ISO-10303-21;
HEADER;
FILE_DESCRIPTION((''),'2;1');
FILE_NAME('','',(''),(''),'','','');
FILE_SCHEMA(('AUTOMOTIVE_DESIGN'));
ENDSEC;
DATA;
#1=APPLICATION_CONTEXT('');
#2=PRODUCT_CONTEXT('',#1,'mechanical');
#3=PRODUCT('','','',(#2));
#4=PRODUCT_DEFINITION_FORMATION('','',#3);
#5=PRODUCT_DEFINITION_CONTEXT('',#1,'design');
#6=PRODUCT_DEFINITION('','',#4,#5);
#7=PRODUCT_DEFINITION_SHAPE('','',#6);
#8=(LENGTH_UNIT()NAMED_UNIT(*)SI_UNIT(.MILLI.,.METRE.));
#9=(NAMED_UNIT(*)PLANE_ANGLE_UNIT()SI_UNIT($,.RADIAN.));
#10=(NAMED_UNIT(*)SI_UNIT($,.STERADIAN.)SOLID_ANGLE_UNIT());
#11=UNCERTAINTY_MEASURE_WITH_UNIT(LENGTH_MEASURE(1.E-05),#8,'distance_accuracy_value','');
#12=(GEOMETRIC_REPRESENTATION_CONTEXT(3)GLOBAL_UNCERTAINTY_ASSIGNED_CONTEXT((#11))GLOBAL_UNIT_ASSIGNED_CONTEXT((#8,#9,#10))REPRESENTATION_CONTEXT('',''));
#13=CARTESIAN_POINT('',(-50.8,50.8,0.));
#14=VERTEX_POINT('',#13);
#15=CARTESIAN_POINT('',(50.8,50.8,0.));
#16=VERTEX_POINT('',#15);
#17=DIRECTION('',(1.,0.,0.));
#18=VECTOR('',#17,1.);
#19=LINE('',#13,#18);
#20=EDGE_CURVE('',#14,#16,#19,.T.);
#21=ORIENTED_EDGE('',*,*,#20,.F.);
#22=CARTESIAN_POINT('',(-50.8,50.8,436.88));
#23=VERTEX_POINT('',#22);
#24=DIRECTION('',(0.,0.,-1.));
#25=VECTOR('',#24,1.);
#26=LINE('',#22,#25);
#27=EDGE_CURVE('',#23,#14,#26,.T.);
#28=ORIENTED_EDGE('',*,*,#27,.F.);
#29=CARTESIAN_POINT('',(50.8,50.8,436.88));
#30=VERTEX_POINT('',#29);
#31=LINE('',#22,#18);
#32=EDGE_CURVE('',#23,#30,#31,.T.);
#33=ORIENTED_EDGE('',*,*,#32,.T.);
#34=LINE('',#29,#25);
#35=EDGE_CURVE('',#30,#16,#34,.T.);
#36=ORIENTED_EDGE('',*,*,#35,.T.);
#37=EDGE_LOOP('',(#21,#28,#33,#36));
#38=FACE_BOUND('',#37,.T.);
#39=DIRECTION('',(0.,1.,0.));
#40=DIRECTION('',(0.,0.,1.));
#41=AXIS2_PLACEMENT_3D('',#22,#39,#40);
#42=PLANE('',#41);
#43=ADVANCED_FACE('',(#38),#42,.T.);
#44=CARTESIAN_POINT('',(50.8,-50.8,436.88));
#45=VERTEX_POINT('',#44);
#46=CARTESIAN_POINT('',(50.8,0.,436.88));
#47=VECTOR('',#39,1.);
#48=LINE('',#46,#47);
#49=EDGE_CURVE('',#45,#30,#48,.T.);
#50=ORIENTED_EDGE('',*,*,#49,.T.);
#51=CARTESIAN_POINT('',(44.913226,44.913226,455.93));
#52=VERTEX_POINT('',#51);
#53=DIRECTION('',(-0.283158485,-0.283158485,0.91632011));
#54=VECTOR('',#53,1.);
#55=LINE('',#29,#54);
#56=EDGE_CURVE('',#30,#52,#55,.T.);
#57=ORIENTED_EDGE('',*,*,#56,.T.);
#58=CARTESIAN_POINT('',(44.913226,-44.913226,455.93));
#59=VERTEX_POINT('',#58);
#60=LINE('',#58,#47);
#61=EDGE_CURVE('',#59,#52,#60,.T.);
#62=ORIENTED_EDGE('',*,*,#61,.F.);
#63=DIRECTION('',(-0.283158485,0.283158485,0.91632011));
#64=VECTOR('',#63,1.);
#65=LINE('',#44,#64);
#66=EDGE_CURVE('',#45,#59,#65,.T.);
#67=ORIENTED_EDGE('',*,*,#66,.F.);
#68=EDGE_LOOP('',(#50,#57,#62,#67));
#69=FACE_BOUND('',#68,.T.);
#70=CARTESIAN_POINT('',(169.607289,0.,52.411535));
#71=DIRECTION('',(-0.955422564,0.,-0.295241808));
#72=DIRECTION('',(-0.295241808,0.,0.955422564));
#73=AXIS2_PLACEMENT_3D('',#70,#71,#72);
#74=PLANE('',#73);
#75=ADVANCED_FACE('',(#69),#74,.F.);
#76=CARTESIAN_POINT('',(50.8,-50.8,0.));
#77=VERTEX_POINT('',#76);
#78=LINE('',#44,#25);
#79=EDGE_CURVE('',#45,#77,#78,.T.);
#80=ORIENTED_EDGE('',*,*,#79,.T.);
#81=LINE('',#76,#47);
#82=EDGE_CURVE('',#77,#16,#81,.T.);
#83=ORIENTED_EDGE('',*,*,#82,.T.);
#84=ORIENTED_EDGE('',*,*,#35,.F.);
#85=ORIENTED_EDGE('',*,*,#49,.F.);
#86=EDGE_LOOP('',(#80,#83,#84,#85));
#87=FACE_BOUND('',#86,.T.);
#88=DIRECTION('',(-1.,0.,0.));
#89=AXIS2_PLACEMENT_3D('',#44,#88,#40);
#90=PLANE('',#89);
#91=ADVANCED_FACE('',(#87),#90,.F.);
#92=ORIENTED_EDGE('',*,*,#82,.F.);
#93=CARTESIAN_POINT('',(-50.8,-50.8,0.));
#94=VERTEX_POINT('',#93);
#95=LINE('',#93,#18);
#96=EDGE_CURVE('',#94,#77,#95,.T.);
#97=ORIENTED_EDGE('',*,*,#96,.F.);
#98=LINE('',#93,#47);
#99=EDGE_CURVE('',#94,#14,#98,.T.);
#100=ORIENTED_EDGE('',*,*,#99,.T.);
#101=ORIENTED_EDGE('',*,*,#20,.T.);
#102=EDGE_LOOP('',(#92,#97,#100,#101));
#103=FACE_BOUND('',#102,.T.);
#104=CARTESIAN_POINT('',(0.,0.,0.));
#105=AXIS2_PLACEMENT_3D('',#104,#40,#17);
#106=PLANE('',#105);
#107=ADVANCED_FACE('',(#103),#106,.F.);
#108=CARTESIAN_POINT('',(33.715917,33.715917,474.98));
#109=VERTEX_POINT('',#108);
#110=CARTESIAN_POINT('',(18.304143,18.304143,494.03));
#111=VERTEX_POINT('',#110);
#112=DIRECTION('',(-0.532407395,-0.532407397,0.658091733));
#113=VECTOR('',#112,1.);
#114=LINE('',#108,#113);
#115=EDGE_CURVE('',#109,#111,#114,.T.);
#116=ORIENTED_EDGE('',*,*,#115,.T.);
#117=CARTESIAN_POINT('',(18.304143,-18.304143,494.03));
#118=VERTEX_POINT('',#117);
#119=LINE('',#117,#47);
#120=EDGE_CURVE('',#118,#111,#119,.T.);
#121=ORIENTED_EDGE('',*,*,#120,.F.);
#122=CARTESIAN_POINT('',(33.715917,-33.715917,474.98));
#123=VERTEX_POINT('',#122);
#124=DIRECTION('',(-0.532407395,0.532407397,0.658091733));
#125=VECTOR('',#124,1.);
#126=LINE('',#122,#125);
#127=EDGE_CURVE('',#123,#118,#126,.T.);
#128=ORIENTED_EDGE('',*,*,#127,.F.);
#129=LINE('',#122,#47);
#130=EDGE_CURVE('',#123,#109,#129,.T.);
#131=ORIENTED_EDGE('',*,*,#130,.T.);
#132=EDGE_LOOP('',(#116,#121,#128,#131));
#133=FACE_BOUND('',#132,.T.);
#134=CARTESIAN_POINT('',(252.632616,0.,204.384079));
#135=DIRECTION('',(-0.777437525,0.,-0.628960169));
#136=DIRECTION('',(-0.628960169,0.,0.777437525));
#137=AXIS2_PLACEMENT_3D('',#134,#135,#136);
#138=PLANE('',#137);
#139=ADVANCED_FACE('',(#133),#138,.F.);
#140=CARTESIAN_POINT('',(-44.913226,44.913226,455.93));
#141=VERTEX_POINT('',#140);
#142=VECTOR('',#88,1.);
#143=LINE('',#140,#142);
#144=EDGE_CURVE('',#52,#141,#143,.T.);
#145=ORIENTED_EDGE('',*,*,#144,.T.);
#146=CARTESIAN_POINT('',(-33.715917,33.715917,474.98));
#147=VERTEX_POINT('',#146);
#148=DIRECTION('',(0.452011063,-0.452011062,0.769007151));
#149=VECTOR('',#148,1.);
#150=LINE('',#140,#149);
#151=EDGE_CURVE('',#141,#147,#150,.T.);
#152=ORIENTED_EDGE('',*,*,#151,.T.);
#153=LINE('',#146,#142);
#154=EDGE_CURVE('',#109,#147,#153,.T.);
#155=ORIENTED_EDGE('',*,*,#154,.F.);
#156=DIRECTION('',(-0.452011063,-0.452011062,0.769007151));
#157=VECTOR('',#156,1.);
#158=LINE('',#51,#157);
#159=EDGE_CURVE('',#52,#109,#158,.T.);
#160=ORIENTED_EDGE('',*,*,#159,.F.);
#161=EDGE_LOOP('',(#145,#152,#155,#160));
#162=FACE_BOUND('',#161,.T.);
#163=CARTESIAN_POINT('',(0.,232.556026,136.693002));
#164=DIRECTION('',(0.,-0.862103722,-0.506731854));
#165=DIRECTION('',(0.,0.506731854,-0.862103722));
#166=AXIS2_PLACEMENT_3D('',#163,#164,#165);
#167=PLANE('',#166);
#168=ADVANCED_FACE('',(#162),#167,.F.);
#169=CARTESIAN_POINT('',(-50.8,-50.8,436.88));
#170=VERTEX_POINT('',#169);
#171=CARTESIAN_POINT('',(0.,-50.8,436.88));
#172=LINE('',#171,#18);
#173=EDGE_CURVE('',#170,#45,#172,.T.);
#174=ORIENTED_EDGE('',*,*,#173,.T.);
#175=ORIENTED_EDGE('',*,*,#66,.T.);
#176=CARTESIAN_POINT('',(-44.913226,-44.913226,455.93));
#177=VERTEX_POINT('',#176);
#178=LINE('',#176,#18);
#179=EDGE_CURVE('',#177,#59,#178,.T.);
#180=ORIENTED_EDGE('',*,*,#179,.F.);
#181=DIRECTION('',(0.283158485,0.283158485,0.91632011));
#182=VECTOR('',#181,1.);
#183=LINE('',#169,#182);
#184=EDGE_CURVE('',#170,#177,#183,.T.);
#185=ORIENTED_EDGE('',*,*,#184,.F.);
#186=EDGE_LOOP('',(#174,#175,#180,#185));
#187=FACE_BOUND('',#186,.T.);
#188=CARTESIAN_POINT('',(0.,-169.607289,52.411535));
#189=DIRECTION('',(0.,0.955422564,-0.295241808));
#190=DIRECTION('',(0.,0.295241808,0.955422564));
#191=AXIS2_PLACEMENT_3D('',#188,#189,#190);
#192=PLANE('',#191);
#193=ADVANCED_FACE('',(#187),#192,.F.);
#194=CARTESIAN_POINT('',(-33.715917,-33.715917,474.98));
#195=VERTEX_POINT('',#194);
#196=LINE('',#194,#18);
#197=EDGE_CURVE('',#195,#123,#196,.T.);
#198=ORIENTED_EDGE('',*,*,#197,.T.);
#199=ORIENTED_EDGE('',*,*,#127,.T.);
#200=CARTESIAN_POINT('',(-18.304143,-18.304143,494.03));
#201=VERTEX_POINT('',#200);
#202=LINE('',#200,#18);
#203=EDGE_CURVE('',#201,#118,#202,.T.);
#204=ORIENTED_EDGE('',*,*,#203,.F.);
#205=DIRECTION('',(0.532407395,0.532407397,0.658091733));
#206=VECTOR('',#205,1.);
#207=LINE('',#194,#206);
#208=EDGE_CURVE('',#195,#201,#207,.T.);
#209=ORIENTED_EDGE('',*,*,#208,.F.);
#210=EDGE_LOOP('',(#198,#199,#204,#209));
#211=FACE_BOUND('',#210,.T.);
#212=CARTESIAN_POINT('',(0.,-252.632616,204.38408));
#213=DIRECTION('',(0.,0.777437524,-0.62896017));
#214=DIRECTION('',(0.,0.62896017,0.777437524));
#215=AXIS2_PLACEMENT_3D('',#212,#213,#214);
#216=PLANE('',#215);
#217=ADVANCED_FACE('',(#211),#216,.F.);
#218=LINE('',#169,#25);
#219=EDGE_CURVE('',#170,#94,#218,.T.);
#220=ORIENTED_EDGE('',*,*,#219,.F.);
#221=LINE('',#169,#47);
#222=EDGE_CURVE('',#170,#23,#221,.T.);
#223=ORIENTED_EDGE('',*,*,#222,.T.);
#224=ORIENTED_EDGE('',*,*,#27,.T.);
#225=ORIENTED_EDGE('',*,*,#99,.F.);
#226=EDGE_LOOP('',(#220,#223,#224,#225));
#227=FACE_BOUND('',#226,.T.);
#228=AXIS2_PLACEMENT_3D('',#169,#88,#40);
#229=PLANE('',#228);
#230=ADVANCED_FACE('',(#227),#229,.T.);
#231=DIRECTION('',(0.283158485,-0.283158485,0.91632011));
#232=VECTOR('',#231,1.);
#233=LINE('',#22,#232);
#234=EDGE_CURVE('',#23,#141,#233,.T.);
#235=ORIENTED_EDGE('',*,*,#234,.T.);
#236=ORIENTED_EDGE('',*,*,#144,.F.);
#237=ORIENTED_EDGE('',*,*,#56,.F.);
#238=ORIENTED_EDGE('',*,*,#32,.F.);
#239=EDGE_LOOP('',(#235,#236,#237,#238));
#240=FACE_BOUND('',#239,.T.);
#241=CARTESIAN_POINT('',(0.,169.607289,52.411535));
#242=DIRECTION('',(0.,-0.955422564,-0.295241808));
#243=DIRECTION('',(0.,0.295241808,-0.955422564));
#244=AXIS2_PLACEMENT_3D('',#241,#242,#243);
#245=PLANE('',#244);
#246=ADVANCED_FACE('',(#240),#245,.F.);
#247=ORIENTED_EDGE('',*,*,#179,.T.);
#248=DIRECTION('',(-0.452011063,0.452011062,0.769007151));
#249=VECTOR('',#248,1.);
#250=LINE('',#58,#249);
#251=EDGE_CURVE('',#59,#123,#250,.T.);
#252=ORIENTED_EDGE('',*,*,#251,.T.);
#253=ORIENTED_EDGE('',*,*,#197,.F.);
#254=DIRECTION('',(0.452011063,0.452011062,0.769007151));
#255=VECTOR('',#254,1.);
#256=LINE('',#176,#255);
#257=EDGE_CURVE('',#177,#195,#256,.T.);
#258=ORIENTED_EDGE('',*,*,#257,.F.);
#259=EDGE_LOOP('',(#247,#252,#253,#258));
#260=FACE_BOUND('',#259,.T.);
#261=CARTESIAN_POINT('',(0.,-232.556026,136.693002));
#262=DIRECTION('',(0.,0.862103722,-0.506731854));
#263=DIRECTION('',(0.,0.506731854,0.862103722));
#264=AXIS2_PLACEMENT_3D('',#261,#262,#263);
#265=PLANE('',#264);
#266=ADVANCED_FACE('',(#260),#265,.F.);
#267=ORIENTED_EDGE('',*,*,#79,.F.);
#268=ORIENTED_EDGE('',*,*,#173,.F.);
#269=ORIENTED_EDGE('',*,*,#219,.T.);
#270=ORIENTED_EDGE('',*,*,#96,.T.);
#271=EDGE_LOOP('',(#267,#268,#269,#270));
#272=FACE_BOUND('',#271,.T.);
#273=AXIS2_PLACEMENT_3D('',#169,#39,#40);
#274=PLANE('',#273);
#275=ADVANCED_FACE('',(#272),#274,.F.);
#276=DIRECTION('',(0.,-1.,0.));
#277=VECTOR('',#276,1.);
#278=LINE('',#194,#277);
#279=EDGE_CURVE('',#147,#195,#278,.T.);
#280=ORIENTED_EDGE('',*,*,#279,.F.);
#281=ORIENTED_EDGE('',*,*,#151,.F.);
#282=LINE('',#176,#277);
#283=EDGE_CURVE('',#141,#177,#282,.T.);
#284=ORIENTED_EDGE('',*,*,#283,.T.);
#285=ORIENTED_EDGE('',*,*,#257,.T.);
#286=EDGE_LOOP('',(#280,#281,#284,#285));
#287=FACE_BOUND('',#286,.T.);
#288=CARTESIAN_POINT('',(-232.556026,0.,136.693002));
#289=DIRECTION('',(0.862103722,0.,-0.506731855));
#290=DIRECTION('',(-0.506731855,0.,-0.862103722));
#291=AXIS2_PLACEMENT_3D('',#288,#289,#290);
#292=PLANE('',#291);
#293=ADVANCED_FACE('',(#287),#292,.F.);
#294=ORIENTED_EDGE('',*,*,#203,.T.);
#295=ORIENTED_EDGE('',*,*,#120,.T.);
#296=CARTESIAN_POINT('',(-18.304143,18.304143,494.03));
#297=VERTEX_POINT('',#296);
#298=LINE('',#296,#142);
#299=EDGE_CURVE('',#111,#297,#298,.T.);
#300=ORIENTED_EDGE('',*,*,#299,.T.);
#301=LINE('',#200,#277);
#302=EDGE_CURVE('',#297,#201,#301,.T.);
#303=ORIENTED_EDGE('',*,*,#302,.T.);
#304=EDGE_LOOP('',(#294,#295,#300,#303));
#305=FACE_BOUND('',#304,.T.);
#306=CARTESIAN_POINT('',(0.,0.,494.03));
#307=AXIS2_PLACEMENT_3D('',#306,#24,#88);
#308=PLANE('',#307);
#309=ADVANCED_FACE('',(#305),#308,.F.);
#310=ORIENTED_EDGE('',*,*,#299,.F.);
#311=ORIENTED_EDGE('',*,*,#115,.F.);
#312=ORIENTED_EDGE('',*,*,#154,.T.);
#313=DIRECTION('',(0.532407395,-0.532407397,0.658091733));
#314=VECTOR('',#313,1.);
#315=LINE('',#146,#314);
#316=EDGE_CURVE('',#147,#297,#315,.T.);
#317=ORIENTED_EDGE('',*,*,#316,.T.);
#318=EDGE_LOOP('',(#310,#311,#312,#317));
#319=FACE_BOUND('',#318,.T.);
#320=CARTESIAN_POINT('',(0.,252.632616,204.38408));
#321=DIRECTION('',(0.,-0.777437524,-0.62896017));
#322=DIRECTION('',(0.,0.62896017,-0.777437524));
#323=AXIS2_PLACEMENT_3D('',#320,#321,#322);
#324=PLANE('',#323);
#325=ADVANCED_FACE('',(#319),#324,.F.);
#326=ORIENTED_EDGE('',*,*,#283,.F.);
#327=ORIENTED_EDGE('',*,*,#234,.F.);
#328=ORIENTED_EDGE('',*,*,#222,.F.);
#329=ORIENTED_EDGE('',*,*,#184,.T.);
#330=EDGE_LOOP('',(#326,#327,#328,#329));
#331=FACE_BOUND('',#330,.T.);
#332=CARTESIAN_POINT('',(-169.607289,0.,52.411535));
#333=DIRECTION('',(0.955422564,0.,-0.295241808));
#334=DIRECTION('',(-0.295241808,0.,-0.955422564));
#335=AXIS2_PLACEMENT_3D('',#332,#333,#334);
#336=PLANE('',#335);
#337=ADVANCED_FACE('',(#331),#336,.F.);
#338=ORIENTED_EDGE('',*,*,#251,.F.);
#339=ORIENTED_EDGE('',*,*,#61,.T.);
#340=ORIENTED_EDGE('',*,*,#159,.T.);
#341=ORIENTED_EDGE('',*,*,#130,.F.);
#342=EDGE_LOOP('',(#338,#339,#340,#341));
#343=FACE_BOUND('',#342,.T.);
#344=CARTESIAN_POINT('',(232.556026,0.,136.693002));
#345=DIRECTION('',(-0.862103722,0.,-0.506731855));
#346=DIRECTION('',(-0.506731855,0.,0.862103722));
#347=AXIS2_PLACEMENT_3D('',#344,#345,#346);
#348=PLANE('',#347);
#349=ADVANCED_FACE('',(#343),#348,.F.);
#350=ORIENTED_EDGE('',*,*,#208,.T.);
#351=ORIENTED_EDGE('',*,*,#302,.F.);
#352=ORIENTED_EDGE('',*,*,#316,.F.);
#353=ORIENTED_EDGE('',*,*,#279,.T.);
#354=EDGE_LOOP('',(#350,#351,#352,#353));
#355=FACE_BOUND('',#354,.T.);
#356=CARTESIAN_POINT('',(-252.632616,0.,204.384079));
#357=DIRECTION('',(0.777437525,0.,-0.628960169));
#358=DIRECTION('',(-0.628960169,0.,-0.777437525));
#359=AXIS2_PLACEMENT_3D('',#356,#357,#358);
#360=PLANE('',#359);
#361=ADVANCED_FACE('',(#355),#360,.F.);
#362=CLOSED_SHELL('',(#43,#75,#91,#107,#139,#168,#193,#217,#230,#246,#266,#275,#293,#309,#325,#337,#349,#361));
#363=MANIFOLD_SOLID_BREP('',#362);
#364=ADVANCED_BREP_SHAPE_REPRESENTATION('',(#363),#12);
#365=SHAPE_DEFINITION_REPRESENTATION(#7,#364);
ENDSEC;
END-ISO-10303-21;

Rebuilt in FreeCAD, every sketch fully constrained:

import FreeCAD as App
import Part
import Sketcher
Q = App.Units.Quantity


def add_polygon(sketch, points):
    """Adds a closed chain of lines whose ends are joined by coincident constraints."""
    first, n = sketch.GeometryCount, len(points)
    for a, b in zip(points, points[1:] + points[:1]):
        sketch.addGeometry(Part.LineSegment(App.Vector(*a, 0), App.Vector(*b, 0)), False)
    for i in range(n):
        sketch.addConstraint(Sketcher.Constraint("Coincident", first + i, 2, first + (i + 1) % n, 1))

doc = App.newDocument("Part")
body = doc.addObject("PartDesign::Body", "Body")

# Sketch on XY plane
sketch1 = body.newObject("Sketcher::SketchObject", "Sketch")
sketch1.AttachmentSupport = (doc.getObject("XY_Plane"), [""])
sketch1.MapMode = "FlatFace"
add_polygon(sketch1, [(-51, 51), (-51, -51), (51, -51), (51, 51)])  # lines 0-3
sketch1.addConstraint([
    Sketcher.Constraint("Vertical", 0),
    Sketcher.Constraint("Horizontal", 1),
    Sketcher.Constraint("Vertical", 2),
    Sketcher.Constraint("Horizontal", 3),
    Sketcher.Constraint("Symmetric", 0, 2, 2, 2, -1, 1),
    Sketcher.Constraint("Equal", 3, 0),
    Sketcher.Constraint("DistanceX", 1, 1, 1, 2, Q("4 in")),
])
pad1 = body.newObject("PartDesign::Pad", "Pad")
pad1.Profile = sketch1
pad1.Length = Q("17.2 in")

# Sketch on XY plane
sketch2 = body.newObject("Sketcher::SketchObject", "Sketch001")
sketch2.AttachmentSupport = (doc.getObject("XY_Plane"), [""])
sketch2.MapMode = "FlatFace"
sketch2.AttachmentOffset = App.Placement(App.Vector(0, 0, 17.2 * 25.4), App.Rotation())
add_polygon(sketch2, [(51, -51), (51, 51), (-51, 51), (-51, -51)])  # lines 0-3
sketch2.addConstraint([
    Sketcher.Constraint("Vertical", 0),
    Sketcher.Constraint("Horizontal", 1),
    Sketcher.Constraint("Vertical", 2),
    Sketcher.Constraint("Horizontal", 3),
    Sketcher.Constraint("Symmetric", 0, 2, 2, 2, -1, 1),
    Sketcher.Constraint("Equal", 3, 0),
    Sketcher.Constraint("DistanceX", 1, 2, 1, 1, Q("4 in")),
])

# Sketch on XY plane
sketch3 = body.newObject("Sketcher::SketchObject", "Sketch002")
sketch3.AttachmentSupport = (doc.getObject("XY_Plane"), [""])
sketch3.MapMode = "FlatFace"
sketch3.AttachmentOffset = App.Placement(App.Vector(0, 0, 17.95 * 25.4), App.Rotation())
add_polygon(sketch3, [(-45, -45), (45, -45), (45, 45), (-45, 45)])  # lines 0-3
sketch3.addConstraint([
    Sketcher.Constraint("Horizontal", 0),
    Sketcher.Constraint("Vertical", 1),
    Sketcher.Constraint("Horizontal", 2),
    Sketcher.Constraint("Vertical", 3),
    Sketcher.Constraint("Symmetric", 0, 2, 2, 2, -1, 1),
    Sketcher.Constraint("Equal", 2, 1),
    Sketcher.Constraint("DistanceX", 0, 1, 0, 2, Q("89.826453 mm")),
])

additiveloft = body.newObject("PartDesign::AdditiveLoft", "AdditiveLoft")
additiveloft.Profile = sketch2
additiveloft.Sections = [sketch3]

# Sketch on XY plane
sketch4 = body.newObject("Sketcher::SketchObject", "Sketch003")
sketch4.AttachmentSupport = (doc.getObject("XY_Plane"), [""])
sketch4.MapMode = "FlatFace"
sketch4.AttachmentOffset = App.Placement(App.Vector(0, 0, 17.95 * 25.4), App.Rotation())
add_polygon(sketch4, [(-45, -45), (45, -45), (45, 45), (-45, 45)])  # lines 0-3
sketch4.addConstraint([
    Sketcher.Constraint("Horizontal", 0),
    Sketcher.Constraint("Vertical", 1),
    Sketcher.Constraint("Horizontal", 2),
    Sketcher.Constraint("Vertical", 3),
    Sketcher.Constraint("Symmetric", 0, 2, 2, 2, -1, 1),
    Sketcher.Constraint("Equal", 2, 1),
    Sketcher.Constraint("DistanceX", 0, 1, 0, 2, Q("89.826453 mm")),
])

# Sketch on XY plane
sketch5 = body.newObject("Sketcher::SketchObject", "Sketch004")
sketch5.AttachmentSupport = (doc.getObject("XY_Plane"), [""])
sketch5.MapMode = "FlatFace"
sketch5.AttachmentOffset = App.Placement(App.Vector(0, 0, 18.7 * 25.4), App.Rotation())
add_polygon(sketch5, [(-34, -34), (34, -34), (34, 34), (-34, 34)])  # lines 0-3
sketch5.addConstraint([
    Sketcher.Constraint("Horizontal", 0),
    Sketcher.Constraint("Vertical", 1),
    Sketcher.Constraint("Horizontal", 2),
    Sketcher.Constraint("Vertical", 3),
    Sketcher.Constraint("Symmetric", 0, 2, 2, 2, -1, 1),
    Sketcher.Constraint("Equal", 2, 1),
    Sketcher.Constraint("DistanceX", 0, 1, 0, 2, Q("67.431834 mm")),
])

additiveloft2 = body.newObject("PartDesign::AdditiveLoft", "AdditiveLoft001")
additiveloft2.Profile = sketch4
additiveloft2.Sections = [sketch5]

# Sketch on XY plane
sketch6 = body.newObject("Sketcher::SketchObject", "Sketch005")
sketch6.AttachmentSupport = (doc.getObject("XY_Plane"), [""])
sketch6.MapMode = "FlatFace"
sketch6.AttachmentOffset = App.Placement(App.Vector(0, 0, 18.7 * 25.4), App.Rotation())
add_polygon(sketch6, [(-34, -34), (34, -34), (34, 34), (-34, 34)])  # lines 0-3
sketch6.addConstraint([
    Sketcher.Constraint("Horizontal", 0),
    Sketcher.Constraint("Vertical", 1),
    Sketcher.Constraint("Horizontal", 2),
    Sketcher.Constraint("Vertical", 3),
    Sketcher.Constraint("Symmetric", 0, 2, 2, 2, -1, 1),
    Sketcher.Constraint("Equal", 2, 1),
    Sketcher.Constraint("DistanceX", 0, 1, 0, 2, Q("67.431834 mm")),
])

# Sketch on XY plane
sketch7 = body.newObject("Sketcher::SketchObject", "Sketch006")
sketch7.AttachmentSupport = (doc.getObject("XY_Plane"), [""])
sketch7.MapMode = "FlatFace"
sketch7.AttachmentOffset = App.Placement(App.Vector(0, 0, 19.45 * 25.4), App.Rotation())
add_polygon(sketch7, [(-18, -18), (18, -18), (18, 18), (-18, 18)])  # lines 0-3
sketch7.addConstraint([
    Sketcher.Constraint("Horizontal", 0),
    Sketcher.Constraint("Vertical", 1),
    Sketcher.Constraint("Horizontal", 2),
    Sketcher.Constraint("Vertical", 3),
    Sketcher.Constraint("Symmetric", 0, 2, 2, 2, -1, 1),
    Sketcher.Constraint("Equal", 2, 1),
    Sketcher.Constraint("DistanceX", 0, 1, 0, 2, Q("36.608287 mm")),
])

additiveloft3 = body.newObject("PartDesign::AdditiveLoft", "AdditiveLoft002")
additiveloft3.Profile = sketch6
additiveloft3.Sections = [sketch7]

doc.recompute()
